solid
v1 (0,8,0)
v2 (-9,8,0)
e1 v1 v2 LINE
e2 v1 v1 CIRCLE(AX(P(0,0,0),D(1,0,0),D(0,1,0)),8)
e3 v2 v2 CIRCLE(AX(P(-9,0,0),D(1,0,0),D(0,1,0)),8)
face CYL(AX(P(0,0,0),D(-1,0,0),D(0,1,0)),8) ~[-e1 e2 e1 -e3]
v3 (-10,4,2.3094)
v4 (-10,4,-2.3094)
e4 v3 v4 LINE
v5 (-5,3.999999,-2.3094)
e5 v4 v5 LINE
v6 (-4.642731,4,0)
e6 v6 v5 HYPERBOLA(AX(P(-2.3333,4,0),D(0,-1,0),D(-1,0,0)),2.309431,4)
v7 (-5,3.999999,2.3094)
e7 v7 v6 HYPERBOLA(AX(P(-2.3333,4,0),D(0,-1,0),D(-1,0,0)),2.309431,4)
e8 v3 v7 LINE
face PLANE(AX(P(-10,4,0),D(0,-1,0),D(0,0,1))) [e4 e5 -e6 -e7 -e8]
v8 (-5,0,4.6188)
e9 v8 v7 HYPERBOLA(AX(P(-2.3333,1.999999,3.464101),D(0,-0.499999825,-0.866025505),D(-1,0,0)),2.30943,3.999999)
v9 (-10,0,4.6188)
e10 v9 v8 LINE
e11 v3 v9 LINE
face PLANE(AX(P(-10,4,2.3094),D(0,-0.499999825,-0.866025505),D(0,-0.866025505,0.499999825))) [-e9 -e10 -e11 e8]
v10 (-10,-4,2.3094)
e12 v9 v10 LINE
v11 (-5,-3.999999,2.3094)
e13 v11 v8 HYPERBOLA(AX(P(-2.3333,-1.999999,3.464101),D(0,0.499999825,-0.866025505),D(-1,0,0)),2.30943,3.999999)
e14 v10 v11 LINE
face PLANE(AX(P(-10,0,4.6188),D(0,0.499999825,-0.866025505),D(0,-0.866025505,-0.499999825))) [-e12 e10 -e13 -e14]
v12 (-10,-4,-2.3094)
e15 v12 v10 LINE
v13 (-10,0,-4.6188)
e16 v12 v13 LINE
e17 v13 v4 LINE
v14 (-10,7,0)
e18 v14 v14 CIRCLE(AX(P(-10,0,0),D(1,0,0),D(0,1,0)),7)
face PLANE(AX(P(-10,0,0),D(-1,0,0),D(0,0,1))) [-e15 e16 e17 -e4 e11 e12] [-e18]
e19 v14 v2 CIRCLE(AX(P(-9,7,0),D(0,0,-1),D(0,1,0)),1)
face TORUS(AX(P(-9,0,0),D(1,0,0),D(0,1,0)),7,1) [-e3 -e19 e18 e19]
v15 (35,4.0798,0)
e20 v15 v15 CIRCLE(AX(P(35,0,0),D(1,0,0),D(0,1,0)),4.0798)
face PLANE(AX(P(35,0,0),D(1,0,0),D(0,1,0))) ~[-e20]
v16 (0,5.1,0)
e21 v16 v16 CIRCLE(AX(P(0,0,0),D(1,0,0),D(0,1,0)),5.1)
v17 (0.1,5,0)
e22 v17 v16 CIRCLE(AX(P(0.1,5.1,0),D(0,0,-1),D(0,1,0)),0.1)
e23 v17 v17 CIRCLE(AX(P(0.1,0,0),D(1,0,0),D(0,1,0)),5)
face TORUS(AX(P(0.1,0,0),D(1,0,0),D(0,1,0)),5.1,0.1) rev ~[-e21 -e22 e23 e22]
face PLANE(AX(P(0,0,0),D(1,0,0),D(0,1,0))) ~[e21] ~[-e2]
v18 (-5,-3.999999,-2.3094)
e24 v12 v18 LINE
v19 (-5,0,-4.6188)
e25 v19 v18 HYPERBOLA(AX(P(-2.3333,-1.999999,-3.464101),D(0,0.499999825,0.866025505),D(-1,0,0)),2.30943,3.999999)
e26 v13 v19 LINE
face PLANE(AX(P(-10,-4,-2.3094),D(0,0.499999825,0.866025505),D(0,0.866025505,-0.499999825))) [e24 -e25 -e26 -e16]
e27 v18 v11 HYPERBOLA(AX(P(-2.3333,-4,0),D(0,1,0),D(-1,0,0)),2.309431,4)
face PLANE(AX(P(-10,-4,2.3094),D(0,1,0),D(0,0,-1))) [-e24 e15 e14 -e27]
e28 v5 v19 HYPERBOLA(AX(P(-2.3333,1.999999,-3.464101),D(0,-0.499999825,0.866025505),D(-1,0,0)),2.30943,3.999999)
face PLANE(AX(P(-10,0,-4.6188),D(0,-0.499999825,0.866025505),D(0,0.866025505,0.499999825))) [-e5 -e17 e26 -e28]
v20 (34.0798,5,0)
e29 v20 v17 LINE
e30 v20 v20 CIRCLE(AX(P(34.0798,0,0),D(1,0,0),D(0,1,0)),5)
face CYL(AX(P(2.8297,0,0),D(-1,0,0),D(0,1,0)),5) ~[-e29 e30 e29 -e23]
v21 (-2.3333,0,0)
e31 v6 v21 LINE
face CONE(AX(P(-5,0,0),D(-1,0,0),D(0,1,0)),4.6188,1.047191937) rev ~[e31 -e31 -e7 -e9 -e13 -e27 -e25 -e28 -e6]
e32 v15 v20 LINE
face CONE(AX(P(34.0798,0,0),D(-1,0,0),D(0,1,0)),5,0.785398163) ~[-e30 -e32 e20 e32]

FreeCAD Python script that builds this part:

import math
import FreeCAD as App
import Part
import Sketcher

V = App.Vector
Q = App.Units.Quantity


def edges_at(feature, points):
    """Names of the edges that pass closest to the given points."""
    edges = feature.Shape.Edges
    near = lambda p: min(range(len(edges)), key=lambda i: edges[i].distToShape(Part.Vertex(*p))[0])
    return sorted({f"Edge{near(p) + 1}" for p in points})


def add_polygon(sketch, points):
    """Adds a closed chain of lines whose ends are joined by coincident constraints."""
    first, n = sketch.GeometryCount, len(points)
    for a, b in zip(points, points[1:] + points[:1]):
        sketch.addGeometry(Part.LineSegment(App.Vector(*a, 0), App.Vector(*b, 0)), False)
    for i in range(n):
        sketch.addConstraint(Sketcher.Constraint("Coincident", first + i, 2, first + (i + 1) % n, 1))

doc = App.newDocument("Part")
body = doc.addObject("PartDesign::Body", "Body")

# Sketch on XY plane
sketch1 = body.newObject("Sketcher::SketchObject", "Sketch")
sketch1.AttachmentSupport = (doc.getObject("XY_Plane"), [""])
sketch1.MapMode = "FlatFace"
add_polygon(sketch1, [(-5, 4.6), (-2.3, 0), (35, 0), (35, 5), (0, 5), (0, 8), (-10, 8), (-10, 4.6)])  # lines 0-7
sketch1.addConstraint(Sketcher.Constraint("Horizontal", 1))
sketch1.addConstraint(Sketcher.Constraint("Vertical", 2))
sketch1.addConstraint(Sketcher.Constraint("Horizontal", 3))
sketch1.addConstraint(Sketcher.Constraint("Vertical", 4))
sketch1.addConstraint(Sketcher.Constraint("Horizontal", 5))
sketch1.addConstraint(Sketcher.Constraint("Vertical", 6))
sketch1.addConstraint(Sketcher.Constraint("Horizontal", 7))
sketch1.addConstraint(Sketcher.Constraint("PointOnObject", 0, 2, -1))
sketch1.addConstraint(Sketcher.Constraint("PointOnObject", 3, 2, -2))
sketch1.addConstraint(Sketcher.Constraint("Equal", 7, 2))
sketch1.addConstraint(Sketcher.Constraint("DistanceX", 3, 2, 3, 1, Q("35 mm")))
sketch1.addConstraint(Sketcher.Constraint("DistanceX", 5, 2, 5, 1, Q("10 mm")))
sketch1.addConstraint(Sketcher.Constraint("DistanceX", 7, 1, 7, 2, Q("5 mm")))
sketch1.addConstraint(Sketcher.Constraint("Angle", 0, Q("-59.9997 deg")))
sketch1.addConstraint(Sketcher.Constraint("DistanceY", 4, 1, 4, 2, Q("3 mm")))
sketch1.addConstraint(Sketcher.Constraint("DistanceX", 1, 1, 1, 2, Q("37.3333 mm")))
revolution = body.newObject("PartDesign::Revolution", "Revolution")
revolution.Profile = sketch1
revolution.ReferenceAxis = (sketch1, ["H_Axis"])
revolution.Angle = 360

# Sketch on YZ plane
sketch2 = body.newObject("Sketcher::SketchObject", "Sketch001")
sketch2.AttachmentSupport = (doc.getObject("YZ_Plane"), [""])
sketch2.MapMode = "FlatFace"
sketch2.AttachmentOffset = App.Placement(V(0, 0, -10), App.Rotation())
sketch2.addGeometry(Part.LineSegment(V(4, 2.3, 0), V(0, 4.6, 0)), False)
sketch2.addGeometry(Part.ArcOfCircle(Part.Circle(V(0, 0, 0), V(0, 0, 1), 4.6), math.radians(30), math.radians(90)), False)
sketch2.addGeometry(Part.ArcOfCircle(Part.Circle(V(0, 0, 0), V(0, 0, 1), 4.6), math.radians(90), math.radians(150)), False)
sketch2.addGeometry(Part.LineSegment(V(0, 4.6, 0), V(-4, 2.3, 0)), False)
sketch2.addGeometry(Part.ArcOfCircle(Part.Circle(V(0, 0, 0), V(0, 0, 1), 4.6), math.radians(-30), math.radians(30)), False)
sketch2.addGeometry(Part.LineSegment(V(4, 2.3, 0), V(4, -2.3, 0)), False)
sketch2.addGeometry(Part.LineSegment(V(-4, 2.3, 0), V(-4, -2.3, 0)), False)
sketch2.addGeometry(Part.ArcOfCircle(Part.Circle(V(0, 0, 0), V(0, 0, 1), 4.6), math.radians(150), math.radians(210)), False)
sketch2.addGeometry(Part.LineSegment(V(-4, -2.3, 0), V(0, -4.6, 0)), False)
sketch2.addGeometry(Part.ArcOfCircle(Part.Circle(V(0, 0, 0), V(0, 0, 1), 4.6), math.radians(-150), math.radians(-90)), False)
sketch2.addGeometry(Part.ArcOfCircle(Part.Circle(V(0, 0, 0), V(0, 0, 1), 4.6), math.radians(-90), math.radians(-30)), False)
sketch2.addGeometry(Part.LineSegment(V(0, -4.6, 0), V(4, -2.3, 0)), False)
sketch2.addConstraint(Sketcher.Constraint("Coincident", 0, 1, 1, 1))
sketch2.addConstraint(Sketcher.Constraint("Coincident", 1, 2, 0, 2))
sketch2.addConstraint(Sketcher.Constraint("Coincident", 2, 1, 3, 1))
sketch2.addConstraint(Sketcher.Constraint("Coincident", 3, 2, 2, 2))
sketch2.addConstraint(Sketcher.Constraint("Coincident", 4, 1, 5, 2))
sketch2.addConstraint(Sketcher.Constraint("Coincident", 5, 1, 4, 2))
sketch2.addConstraint(Sketcher.Constraint("Coincident", 6, 1, 7, 1))
sketch2.addConstraint(Sketcher.Constraint("Coincident", 7, 2, 6, 2))
sketch2.addConstraint(Sketcher.Constraint("Coincident", 8, 1, 9, 1))
sketch2.addConstraint(Sketcher.Constraint("Coincident", 9, 2, 8, 2))
sketch2.addConstraint(Sketcher.Constraint("Coincident", 10, 1, 11, 1))
sketch2.addConstraint(Sketcher.Constraint("Coincident", 11, 2, 10, 2))
sketch2.addConstraint(Sketcher.Constraint("Vertical", 5))
sketch2.addConstraint(Sketcher.Constraint("Vertical", 6))
sketch2.addConstraint(Sketcher.Constraint("Coincident", 1, 3, -1, 1))
sketch2.addConstraint(Sketcher.Constraint("Coincident", 2, 3, -1, 1))
sketch2.addConstraint(Sketcher.Constraint("Coincident", 4, 3, -1, 1))
sketch2.addConstraint(Sketcher.Constraint("Coincident", 7, 3, -1, 1))
sketch2.addConstraint(Sketcher.Constraint("Coincident", 9, 3, -1, 1))
sketch2.addConstraint(Sketcher.Constraint("Coincident", 10, 3, -1, 1))
sketch2.addConstraint(Sketcher.Constraint("Coincident", 2, 1, 1, 2))
sketch2.addConstraint(Sketcher.Constraint("Coincident", 5, 1, 0, 1))
sketch2.addConstraint(Sketcher.Constraint("Coincident", 6, 1, 3, 2))
sketch2.addConstraint(Sketcher.Constraint("Coincident", 8, 1, 7, 2))
sketch2.addConstraint(Sketcher.Constraint("Coincident", 10, 1, 9, 2))
sketch2.addConstraint(Sketcher.Constraint("PointOnObject", 1, 2, -2))
sketch2.addConstraint(Sketcher.Constraint("PointOnObject", 9, 2, -2))
sketch2.addConstraint(Sketcher.Constraint("Parallel", 0, 8))
sketch2.addConstraint(Sketcher.Constraint("Parallel", 3, 11))
sketch2.addConstraint(Sketcher.Constraint("Angle", 0, Q("150 deg")))
sketch2.addConstraint(Sketcher.Constraint("DistanceX", -1, 1, 0, 1, Q("4 mm")))
pad1 = body.newObject("PartDesign::Pad", "Pad")
pad1.Profile = sketch2
pad1.Type = "UpToFirst"
doc.recompute()

fillet = body.newObject("PartDesign::Fillet", "Fillet")
fillet.Base = (pad1, edges_at(pad1, [(-10, -8, 0)]))
fillet.Radius = 1
doc.recompute()

chamfer = body.newObject("PartDesign::Chamfer", "Chamfer")
chamfer.Base = (fillet, edges_at(fillet, [(35, -5, 0)]))
chamfer.ChamferType = "Two distances"
chamfer.Size = 0.9202
chamfer.Size2 = 0.9202
doc.recompute()

fillet2 = body.newObject("PartDesign::Fillet", "Fillet001")
fillet2.Base = (chamfer, edges_at(chamfer, [(0, -5, 0)]))
fillet2.Radius = 0.1

doc.recompute()
